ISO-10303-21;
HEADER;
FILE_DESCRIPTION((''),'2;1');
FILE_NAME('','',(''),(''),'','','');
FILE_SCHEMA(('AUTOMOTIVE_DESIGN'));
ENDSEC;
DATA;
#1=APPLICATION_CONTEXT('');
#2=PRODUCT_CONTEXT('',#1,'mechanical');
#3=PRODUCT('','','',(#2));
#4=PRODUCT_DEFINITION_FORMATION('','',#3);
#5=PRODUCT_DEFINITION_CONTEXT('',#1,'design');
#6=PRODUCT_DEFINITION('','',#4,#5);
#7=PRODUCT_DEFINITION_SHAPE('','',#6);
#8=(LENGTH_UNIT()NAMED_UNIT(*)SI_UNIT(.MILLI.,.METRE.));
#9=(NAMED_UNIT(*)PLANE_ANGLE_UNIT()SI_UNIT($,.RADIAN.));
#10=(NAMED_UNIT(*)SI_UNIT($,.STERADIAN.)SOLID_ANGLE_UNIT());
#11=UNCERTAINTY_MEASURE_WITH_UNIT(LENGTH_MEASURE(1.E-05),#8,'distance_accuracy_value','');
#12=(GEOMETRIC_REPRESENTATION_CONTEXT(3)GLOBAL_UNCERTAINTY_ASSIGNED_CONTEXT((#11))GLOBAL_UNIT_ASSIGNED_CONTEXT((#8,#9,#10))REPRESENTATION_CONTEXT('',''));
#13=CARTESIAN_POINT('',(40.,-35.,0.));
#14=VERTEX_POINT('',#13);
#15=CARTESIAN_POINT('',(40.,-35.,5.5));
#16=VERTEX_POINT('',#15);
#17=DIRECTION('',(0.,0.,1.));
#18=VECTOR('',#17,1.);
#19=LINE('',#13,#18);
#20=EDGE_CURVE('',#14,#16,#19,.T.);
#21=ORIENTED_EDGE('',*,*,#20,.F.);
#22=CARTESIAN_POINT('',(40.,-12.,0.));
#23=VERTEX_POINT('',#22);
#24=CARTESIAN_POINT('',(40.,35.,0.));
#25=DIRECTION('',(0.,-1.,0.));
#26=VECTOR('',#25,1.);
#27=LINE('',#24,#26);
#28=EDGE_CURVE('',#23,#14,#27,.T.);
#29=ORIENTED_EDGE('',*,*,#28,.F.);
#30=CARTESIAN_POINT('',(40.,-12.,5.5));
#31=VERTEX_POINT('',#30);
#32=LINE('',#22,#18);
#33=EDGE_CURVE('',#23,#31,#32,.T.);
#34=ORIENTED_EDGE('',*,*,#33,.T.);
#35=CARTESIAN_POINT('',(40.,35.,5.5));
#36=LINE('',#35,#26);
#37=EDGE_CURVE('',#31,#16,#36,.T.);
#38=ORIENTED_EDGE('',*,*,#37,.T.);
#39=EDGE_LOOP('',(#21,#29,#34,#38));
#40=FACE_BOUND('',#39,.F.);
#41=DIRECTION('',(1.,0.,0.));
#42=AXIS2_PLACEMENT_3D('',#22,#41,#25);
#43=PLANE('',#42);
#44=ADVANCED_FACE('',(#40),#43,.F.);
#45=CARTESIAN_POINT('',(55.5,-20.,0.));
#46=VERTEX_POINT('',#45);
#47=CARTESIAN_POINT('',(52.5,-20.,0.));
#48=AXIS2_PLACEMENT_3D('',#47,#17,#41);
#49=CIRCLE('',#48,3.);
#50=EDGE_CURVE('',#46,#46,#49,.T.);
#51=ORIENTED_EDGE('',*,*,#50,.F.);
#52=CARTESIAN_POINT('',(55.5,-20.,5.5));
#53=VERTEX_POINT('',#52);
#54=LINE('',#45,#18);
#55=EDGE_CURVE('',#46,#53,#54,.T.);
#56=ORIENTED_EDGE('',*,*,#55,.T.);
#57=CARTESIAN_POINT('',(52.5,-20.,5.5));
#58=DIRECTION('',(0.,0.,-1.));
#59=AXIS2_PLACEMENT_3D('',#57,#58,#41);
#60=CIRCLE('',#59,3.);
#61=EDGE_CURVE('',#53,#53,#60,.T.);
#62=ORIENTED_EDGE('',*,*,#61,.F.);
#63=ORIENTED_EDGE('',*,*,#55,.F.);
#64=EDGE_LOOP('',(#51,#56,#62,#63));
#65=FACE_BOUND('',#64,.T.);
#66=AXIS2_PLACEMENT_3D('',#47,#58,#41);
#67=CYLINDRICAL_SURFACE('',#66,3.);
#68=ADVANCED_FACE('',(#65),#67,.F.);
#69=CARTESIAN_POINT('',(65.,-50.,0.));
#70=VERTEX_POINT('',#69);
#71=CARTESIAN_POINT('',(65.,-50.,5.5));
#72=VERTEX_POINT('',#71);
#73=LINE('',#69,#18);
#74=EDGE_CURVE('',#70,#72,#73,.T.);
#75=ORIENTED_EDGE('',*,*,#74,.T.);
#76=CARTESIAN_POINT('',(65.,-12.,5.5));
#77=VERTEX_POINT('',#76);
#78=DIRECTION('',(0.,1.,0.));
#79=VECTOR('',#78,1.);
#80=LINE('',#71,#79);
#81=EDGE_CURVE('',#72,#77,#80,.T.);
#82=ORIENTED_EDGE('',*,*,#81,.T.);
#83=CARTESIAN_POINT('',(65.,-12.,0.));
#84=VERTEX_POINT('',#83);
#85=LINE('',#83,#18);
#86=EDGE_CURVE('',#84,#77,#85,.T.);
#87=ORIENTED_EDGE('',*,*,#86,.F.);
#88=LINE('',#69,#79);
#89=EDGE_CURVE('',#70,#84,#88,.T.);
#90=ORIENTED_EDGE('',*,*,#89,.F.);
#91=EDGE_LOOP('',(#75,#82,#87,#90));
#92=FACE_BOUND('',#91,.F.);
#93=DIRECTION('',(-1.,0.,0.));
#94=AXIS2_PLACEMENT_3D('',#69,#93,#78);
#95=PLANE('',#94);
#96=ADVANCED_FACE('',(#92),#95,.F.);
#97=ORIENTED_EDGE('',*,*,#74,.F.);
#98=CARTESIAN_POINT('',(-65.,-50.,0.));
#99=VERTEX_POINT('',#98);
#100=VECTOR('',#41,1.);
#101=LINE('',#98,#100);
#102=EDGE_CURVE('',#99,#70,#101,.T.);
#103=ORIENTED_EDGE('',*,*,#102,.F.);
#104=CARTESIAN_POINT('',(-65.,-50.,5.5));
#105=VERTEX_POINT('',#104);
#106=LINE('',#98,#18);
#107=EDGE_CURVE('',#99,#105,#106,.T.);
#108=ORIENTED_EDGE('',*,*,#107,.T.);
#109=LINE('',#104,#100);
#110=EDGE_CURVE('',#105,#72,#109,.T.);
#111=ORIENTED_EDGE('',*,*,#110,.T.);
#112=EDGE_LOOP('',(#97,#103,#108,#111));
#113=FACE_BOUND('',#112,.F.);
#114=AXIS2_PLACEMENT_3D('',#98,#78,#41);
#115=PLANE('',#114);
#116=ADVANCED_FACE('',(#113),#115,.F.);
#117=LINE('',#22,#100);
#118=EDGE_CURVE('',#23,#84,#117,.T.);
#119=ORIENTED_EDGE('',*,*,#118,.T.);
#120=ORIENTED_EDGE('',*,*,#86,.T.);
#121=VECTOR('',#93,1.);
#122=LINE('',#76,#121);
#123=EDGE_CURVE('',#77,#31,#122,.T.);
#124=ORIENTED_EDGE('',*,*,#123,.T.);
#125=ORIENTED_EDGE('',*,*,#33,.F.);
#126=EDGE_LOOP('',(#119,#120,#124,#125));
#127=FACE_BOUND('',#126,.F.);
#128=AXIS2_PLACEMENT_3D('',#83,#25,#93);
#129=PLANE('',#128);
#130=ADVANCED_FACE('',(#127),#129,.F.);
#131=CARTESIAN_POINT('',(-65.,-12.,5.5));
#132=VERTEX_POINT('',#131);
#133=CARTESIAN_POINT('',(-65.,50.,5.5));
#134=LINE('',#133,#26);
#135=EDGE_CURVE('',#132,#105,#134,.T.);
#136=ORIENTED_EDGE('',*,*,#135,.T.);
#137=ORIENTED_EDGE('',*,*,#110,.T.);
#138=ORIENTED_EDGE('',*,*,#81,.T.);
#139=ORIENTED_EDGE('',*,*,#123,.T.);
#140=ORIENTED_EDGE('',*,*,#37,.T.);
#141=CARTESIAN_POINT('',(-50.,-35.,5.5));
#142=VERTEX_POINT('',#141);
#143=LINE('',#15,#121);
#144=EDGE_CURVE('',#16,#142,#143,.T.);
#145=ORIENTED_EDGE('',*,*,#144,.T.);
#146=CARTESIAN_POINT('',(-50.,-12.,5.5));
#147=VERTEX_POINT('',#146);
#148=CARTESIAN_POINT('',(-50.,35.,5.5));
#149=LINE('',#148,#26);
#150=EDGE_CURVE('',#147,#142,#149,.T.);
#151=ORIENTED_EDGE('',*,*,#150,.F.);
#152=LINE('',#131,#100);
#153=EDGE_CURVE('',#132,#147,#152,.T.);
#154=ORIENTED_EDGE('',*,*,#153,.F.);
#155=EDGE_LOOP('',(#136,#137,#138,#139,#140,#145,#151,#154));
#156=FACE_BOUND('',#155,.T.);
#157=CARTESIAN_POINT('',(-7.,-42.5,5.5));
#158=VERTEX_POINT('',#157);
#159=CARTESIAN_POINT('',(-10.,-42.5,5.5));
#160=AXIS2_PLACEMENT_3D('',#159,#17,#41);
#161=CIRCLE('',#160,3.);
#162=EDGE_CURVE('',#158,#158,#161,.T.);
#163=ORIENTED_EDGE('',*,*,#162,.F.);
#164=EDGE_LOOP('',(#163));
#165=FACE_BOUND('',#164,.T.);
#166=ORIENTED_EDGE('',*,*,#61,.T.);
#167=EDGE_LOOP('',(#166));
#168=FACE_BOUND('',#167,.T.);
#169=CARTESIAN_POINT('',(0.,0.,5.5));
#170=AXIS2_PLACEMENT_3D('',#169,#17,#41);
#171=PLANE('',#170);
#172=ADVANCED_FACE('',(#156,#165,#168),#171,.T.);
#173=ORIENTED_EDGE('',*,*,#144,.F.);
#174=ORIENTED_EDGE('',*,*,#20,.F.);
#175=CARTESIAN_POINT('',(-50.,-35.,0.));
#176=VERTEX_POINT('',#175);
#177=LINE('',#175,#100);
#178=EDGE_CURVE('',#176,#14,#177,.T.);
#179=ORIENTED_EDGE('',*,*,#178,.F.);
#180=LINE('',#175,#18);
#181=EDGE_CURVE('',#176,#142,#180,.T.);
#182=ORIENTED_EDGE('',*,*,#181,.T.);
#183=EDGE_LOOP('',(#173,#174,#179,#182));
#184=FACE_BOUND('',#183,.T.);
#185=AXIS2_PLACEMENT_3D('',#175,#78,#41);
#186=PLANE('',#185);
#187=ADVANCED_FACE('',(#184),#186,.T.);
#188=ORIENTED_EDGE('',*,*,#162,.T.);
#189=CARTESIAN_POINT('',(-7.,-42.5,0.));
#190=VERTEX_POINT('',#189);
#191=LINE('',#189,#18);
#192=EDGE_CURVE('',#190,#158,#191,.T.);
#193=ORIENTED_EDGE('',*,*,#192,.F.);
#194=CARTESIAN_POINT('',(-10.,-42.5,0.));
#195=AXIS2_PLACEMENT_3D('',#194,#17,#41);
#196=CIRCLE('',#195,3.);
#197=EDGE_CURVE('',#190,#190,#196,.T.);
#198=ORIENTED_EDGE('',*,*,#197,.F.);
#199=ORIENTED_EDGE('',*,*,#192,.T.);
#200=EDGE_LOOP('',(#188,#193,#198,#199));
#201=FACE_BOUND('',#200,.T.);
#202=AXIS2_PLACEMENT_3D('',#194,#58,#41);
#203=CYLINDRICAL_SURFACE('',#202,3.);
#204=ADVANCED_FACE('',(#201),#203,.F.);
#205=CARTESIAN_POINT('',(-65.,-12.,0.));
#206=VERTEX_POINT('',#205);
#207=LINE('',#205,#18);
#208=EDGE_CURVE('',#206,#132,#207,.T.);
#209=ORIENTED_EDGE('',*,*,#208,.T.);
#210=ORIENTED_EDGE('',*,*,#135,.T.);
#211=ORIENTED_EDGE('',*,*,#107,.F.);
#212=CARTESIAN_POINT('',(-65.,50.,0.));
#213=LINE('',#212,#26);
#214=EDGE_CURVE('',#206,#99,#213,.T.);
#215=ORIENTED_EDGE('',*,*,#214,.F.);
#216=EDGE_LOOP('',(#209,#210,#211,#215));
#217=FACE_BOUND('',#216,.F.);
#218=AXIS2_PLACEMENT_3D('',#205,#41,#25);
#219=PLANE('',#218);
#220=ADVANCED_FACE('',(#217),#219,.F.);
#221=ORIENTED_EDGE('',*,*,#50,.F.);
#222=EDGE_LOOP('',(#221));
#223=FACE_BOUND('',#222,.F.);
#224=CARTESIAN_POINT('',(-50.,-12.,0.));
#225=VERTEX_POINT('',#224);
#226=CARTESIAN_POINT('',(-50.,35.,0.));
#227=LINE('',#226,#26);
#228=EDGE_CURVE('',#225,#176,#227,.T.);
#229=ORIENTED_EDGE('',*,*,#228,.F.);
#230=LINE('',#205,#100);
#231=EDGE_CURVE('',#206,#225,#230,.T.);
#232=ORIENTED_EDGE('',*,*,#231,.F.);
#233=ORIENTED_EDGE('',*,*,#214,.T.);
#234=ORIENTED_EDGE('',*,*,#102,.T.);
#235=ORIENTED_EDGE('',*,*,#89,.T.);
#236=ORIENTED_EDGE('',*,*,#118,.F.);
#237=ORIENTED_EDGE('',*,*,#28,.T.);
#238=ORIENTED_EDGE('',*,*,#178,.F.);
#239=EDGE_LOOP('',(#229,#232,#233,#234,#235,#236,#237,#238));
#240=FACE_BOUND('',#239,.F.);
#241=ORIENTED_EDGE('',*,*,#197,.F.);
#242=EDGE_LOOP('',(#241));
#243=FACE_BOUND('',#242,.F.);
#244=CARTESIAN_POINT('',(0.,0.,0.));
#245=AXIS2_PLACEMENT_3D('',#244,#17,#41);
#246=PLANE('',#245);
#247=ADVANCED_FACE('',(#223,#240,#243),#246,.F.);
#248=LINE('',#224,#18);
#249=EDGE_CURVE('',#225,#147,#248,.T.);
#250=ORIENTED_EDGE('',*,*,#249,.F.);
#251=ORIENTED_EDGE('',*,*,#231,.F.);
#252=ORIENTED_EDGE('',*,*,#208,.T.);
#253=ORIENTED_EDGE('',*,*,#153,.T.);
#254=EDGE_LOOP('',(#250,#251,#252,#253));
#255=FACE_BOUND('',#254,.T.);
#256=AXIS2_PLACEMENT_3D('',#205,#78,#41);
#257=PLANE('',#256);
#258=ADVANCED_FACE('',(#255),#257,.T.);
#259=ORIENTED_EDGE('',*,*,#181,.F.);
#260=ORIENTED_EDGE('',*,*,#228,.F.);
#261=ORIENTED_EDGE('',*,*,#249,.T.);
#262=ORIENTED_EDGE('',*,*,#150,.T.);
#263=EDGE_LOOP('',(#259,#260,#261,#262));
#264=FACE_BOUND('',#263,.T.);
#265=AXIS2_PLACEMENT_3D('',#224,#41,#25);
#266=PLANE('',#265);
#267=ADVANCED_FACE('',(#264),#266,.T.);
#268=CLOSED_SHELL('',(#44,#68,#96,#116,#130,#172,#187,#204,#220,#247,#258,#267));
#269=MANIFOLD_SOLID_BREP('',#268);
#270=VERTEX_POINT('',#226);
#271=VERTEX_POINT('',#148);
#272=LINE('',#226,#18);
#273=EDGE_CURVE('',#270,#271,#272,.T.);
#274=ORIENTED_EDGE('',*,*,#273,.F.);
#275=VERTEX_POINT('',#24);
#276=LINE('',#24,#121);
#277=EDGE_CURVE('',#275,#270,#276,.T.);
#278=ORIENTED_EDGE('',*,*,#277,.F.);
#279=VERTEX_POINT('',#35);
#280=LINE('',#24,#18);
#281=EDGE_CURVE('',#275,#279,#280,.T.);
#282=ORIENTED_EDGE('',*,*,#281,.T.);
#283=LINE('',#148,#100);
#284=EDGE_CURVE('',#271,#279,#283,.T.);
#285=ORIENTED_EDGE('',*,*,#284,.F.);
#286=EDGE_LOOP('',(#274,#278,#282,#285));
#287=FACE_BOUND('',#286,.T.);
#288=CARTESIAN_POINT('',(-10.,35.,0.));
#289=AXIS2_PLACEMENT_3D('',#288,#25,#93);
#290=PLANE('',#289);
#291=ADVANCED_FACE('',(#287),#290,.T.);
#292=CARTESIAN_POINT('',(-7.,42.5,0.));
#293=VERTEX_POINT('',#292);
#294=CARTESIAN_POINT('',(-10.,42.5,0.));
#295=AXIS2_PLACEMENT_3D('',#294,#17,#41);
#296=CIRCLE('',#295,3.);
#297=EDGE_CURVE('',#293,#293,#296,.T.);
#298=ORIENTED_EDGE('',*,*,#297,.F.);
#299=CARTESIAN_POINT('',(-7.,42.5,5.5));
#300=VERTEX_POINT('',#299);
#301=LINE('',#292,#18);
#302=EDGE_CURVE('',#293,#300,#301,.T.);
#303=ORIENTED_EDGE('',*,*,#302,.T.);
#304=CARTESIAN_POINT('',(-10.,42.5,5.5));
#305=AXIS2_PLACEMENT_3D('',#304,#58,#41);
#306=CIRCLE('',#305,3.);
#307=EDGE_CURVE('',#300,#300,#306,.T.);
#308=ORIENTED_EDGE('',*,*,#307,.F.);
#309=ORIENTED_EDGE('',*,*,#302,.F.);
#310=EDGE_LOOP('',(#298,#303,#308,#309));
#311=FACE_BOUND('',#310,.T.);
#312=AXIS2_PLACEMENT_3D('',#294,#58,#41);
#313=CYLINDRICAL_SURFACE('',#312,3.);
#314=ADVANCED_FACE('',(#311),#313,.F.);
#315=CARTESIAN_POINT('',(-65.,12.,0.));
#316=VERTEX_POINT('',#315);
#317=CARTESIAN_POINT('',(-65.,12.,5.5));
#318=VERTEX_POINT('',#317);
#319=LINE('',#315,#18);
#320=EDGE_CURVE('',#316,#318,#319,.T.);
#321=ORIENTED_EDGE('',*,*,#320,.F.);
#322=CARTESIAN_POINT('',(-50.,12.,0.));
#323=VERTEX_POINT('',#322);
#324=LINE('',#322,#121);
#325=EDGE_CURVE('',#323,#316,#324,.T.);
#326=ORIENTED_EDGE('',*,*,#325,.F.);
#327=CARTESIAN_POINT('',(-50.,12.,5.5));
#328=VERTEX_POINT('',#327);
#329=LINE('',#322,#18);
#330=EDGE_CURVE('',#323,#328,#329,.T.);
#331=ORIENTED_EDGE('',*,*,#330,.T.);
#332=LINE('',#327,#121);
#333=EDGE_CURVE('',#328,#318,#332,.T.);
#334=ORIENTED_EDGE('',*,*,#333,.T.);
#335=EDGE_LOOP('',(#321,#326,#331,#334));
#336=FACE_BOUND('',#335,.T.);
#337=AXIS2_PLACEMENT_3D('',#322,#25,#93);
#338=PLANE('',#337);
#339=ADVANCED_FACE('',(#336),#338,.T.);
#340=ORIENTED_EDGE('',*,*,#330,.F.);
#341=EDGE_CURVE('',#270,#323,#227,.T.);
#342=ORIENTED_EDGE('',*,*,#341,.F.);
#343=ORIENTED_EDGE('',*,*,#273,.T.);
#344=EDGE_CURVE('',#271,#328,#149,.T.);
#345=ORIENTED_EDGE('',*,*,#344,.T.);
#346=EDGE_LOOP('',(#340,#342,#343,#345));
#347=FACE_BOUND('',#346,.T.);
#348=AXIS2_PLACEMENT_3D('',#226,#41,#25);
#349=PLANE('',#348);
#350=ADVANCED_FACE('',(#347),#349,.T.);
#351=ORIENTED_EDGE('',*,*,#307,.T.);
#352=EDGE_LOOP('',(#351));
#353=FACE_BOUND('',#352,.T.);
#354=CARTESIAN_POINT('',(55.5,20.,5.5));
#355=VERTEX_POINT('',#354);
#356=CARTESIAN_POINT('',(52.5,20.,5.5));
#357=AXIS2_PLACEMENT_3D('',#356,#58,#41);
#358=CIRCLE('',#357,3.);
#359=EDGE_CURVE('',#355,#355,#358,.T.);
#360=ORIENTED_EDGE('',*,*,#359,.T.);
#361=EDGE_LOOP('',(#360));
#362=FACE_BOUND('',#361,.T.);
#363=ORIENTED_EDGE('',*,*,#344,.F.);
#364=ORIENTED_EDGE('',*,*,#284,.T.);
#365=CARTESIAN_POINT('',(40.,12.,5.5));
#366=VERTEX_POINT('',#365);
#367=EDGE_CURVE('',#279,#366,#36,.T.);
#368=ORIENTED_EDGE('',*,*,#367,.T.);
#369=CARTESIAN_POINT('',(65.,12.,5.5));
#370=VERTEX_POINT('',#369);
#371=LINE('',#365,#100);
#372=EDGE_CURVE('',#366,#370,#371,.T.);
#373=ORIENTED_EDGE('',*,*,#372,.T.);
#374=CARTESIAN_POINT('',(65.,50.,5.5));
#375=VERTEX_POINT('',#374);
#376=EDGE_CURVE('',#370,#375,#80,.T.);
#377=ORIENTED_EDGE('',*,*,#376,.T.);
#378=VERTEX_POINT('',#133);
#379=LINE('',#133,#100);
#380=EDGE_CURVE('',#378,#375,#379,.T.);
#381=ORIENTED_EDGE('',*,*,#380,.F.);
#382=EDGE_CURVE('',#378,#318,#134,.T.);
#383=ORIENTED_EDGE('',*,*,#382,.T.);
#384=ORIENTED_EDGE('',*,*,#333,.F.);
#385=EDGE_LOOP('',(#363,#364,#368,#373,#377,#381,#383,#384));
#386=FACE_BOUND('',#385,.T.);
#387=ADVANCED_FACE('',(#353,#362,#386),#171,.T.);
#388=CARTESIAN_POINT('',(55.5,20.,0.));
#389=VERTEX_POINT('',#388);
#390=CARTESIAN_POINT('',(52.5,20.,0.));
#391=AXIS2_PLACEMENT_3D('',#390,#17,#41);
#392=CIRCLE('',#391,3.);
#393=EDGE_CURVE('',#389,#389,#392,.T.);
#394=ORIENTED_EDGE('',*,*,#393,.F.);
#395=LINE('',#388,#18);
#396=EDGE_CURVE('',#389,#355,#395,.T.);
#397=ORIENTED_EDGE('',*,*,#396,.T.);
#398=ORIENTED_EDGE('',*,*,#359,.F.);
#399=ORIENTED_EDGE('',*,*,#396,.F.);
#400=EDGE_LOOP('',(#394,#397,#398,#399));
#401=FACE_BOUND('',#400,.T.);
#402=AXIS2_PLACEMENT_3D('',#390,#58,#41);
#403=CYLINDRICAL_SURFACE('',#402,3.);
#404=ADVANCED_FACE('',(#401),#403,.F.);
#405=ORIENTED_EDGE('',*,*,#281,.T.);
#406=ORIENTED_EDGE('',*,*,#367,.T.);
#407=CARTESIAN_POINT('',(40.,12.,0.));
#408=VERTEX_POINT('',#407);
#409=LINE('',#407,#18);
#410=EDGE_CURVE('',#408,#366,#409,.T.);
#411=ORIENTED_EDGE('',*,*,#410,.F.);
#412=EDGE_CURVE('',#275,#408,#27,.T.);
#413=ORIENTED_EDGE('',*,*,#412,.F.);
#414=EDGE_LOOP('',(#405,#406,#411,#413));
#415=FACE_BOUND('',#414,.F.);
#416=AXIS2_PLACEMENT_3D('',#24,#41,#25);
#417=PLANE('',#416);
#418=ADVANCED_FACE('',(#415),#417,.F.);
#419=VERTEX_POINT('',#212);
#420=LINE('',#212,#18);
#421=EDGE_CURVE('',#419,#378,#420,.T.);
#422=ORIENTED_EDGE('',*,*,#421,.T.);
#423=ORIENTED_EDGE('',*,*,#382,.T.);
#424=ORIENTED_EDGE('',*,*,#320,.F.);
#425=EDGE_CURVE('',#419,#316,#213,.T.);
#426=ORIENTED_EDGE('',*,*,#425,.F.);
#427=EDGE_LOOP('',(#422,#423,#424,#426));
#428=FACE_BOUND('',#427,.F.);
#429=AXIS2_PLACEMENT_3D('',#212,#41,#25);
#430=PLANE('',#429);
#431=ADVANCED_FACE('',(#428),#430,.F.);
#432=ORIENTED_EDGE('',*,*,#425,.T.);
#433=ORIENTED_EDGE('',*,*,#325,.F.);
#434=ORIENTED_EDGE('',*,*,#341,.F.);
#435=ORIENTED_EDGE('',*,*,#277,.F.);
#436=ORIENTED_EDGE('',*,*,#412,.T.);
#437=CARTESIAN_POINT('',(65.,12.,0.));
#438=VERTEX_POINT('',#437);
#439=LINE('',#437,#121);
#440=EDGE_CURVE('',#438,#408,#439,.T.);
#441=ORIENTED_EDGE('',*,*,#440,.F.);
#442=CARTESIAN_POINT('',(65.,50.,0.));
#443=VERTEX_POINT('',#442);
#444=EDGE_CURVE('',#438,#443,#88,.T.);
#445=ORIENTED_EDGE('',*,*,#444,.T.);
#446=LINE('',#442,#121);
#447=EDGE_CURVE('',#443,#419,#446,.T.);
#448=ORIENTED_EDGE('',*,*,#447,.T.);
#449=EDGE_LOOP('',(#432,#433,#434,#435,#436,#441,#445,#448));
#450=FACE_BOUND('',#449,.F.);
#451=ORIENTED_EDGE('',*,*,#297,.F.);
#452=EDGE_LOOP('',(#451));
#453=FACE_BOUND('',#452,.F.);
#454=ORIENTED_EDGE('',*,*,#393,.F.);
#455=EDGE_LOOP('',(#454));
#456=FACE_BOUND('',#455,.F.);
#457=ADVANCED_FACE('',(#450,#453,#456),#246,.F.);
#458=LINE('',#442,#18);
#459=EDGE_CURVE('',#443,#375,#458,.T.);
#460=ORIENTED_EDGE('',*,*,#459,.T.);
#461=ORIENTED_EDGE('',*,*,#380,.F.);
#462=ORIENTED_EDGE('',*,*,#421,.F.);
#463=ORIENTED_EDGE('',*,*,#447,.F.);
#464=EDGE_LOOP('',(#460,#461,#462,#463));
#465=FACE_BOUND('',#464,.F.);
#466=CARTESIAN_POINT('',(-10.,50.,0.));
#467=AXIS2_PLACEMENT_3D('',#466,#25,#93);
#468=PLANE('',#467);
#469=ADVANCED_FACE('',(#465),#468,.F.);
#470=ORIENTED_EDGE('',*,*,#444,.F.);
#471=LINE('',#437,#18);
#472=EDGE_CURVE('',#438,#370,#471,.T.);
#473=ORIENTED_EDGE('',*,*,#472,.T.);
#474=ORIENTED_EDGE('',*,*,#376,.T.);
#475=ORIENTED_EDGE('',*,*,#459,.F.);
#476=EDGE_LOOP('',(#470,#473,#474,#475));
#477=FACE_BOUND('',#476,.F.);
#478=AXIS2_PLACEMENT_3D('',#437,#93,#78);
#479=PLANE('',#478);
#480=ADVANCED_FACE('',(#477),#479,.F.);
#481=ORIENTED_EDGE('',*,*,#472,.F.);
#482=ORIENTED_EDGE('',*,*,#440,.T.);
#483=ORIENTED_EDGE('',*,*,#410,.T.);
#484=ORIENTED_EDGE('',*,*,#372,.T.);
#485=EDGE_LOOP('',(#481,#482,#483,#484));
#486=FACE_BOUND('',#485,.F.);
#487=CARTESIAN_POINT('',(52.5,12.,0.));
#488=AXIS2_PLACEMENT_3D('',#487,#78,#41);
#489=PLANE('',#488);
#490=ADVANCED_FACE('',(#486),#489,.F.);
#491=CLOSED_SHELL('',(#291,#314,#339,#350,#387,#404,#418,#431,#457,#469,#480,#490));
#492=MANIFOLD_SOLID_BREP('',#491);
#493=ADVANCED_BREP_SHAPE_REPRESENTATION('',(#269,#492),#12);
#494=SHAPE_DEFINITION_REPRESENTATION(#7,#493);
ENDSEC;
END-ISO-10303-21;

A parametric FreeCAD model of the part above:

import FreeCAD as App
import Part
import Sketcher
from FreeCAD import Vector
Q = App.Units.Quantity


def add_polygon(sketch, points):
    """Adds a closed chain of lines whose ends are joined by coincident constraints."""
    first, n = sketch.GeometryCount, len(points)
    for a, b in zip(points, points[1:] + points[:1]):
        sketch.addGeometry(Part.LineSegment(App.Vector(*a, 0), App.Vector(*b, 0)), False)
    for i in range(n):
        sketch.addConstraint(Sketcher.Constraint("Coincident", first + i, 2, first + (i + 1) % n, 1))

doc = App.newDocument("Part")
body = doc.addObject("PartDesign::Body", "Body")
body.AllowCompound = True

sketch1 = body.newObject("Sketcher::SketchObject", "Sketch")
sketch1.AttachmentSupport = (doc.getObject("XY_Plane"), [""])
sketch1.MapMode = "FlatFace"
add_polygon(sketch1, [(-65, -12), (-65, -50), (65, -50), (65, -12), (40, -12), (40, -35), (-50, -35), (-50, -12)])
sketch1.addGeometry(Part.Circle(Vector(52.5, -20, 0), Vector(0, 0, 1), 3), False)
sketch1.addGeometry(Part.Circle(Vector(-10, -42.5, 0), Vector(0, 0, 1), 3), False)
add_polygon(sketch1, [(-65, 50), (-65, 12), (-50, 12), (-50, 35), (40, 35), (40, 12), (65, 12), (65, 50)])
sketch1.addGeometry(Part.Circle(Vector(-10, 42.5, 0), Vector(0, 0, 1), 3), False)
sketch1.addGeometry(Part.Circle(Vector(52.5, 20, 0), Vector(0, 0, 1), 3), False)
sketch1.addConstraint(Sketcher.Constraint("Vertical", 0))
sketch1.addConstraint(Sketcher.Constraint("Horizontal", 1))
sketch1.addConstraint(Sketcher.Constraint("Vertical", 2))
sketch1.addConstraint(Sketcher.Constraint("Horizontal", 3))
sketch1.addConstraint(Sketcher.Constraint("Vertical", 4))
sketch1.addConstraint(Sketcher.Constraint("Horizontal", 5))
sketch1.addConstraint(Sketcher.Constraint("Vertical", 6))
sketch1.addConstraint(Sketcher.Constraint("Horizontal", 7))
sketch1.addConstraint(Sketcher.Constraint("Vertical", 10))
sketch1.addConstraint(Sketcher.Constraint("Horizontal", 11))
sketch1.addConstraint(Sketcher.Constraint("Vertical", 12))
sketch1.addConstraint(Sketcher.Constraint("Horizontal", 13))
sketch1.addConstraint(Sketcher.Constraint("Vertical", 14))
sketch1.addConstraint(Sketcher.Constraint("Horizontal", 15))
sketch1.addConstraint(Sketcher.Constraint("Vertical", 16))
sketch1.addConstraint(Sketcher.Constraint("Horizontal", 17))
sketch1.addConstraint(Sketcher.Constraint("Equal", 8, 9))
sketch1.addConstraint(Sketcher.Constraint("Equal", 9, 18))
sketch1.addConstraint(Sketcher.Constraint("Equal", 18, 19))
sketch1.addConstraint(Sketcher.Constraint("Symmetric", 2, 2, 10, 2, -1, 1))
sketch1.addConstraint(Sketcher.Constraint("Symmetric", 7, 2, 15, 2, -1, 1))
sketch1.addConstraint(Sketcher.Constraint("Symmetric", 2, 2, 7, 2, -2))
sketch1.addConstraint(Sketcher.Constraint("Symmetric", 9, 3, 18, 3, -1))
sketch1.addConstraint(Sketcher.Constraint("Symmetric", 8, 3, 19, 3, -1))
sketch1.addConstraint(Sketcher.Constraint("Symmetric", 5, 2, 12, 2, -1))
sketch1.addConstraint(Sketcher.Constraint("Vertical", 4, 2, 13, 2))
sketch1.addConstraint(Sketcher.Constraint("Equal", 2, 10))
sketch1.addConstraint(Sketcher.Constraint("Diameter", 8, Q("6 mm")))
sketch1.addConstraint(Sketcher.Constraint("DistanceX", 1, 1, 1, 2, Q("130 mm")))
sketch1.addConstraint(Sketcher.Constraint("DistanceY", 8, 3, -1, 1, Q("20 mm")))
sketch1.addConstraint(Sketcher.Constraint("DistanceY", 2, 2, -1, 1, Q("12 mm")))
sketch1.addConstraint(Sketcher.Constraint("DistanceX", 3, 2, 3, 1, Q("25 mm")))
sketch1.addConstraint(Sketcher.Constraint("DistanceX", 5, 2, 5, 1, Q("90 mm")))
sketch1.addConstraint(Sketcher.Constraint("DistanceY", 0, 2, 0, 1, Q("38 mm")))
sketch1.addConstraint(Sketcher.Constraint("DistanceY", 4, 2, 4, 1, Q("23 mm")))
sketch1.addConstraint(Sketcher.Constraint("DistanceX", 9, 3, -1, 1, Q("10 mm")))
sketch1.addConstraint(Sketcher.Constraint("DistanceY", 9, 3, 18, 3, Q("85 mm")))
sketch1.addConstraint(Sketcher.Constraint("DistanceX", -1, 1, 8, 3, Q("52.5 mm")))
pad1 = body.newObject("PartDesign::Pad", "Pad")
pad1.Profile = sketch1
pad1.Length = 5.5

doc.recompute()
